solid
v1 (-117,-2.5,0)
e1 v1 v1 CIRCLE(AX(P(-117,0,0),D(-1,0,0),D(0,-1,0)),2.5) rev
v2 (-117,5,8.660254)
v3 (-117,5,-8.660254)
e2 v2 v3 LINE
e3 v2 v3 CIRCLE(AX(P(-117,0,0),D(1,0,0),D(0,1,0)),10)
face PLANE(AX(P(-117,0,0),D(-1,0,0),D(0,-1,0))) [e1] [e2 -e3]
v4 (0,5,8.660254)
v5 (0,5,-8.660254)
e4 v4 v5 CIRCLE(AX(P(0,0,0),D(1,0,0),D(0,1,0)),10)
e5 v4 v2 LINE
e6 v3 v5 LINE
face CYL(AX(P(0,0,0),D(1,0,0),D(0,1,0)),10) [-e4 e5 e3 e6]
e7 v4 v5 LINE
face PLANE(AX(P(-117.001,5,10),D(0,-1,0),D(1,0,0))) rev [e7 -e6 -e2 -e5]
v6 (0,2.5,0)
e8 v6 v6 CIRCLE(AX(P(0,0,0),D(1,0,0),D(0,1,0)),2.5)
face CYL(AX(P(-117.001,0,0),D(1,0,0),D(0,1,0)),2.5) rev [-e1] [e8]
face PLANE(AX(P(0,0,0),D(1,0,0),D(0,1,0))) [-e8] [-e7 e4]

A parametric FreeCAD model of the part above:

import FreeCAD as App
import Part
import Sketcher

V = App.Vector

doc = App.newDocument("Part")
body = doc.addObject("PartDesign::Body", "Body")

sketch1 = body.newObject("Sketcher::SketchObject", "Sketch")
sketch1.AttachmentSupport = (doc.getObject("XY_Plane"), [""])
sketch1.MapMode = "FlatFace"
sketch1.addGeometry([
    Part.LineSegment(V(-117, 10, 0), V(-117, 0, 0)),
    Part.LineSegment(V(-117, 0, 0), V(0, 0, 0)),
    Part.LineSegment(V(0, 0, 0), V(0, 10, 0)),
    Part.LineSegment(V(0, 10, 0), V(-117, 10, 0)),
], False)
sketch1.addConstraint([
    Sketcher.Constraint("Coincident", 0, 2, 1, 1),
    Sketcher.Constraint("Coincident", 1, 2, 2, 1),
    Sketcher.Constraint("Coincident", 2, 2, 3, 1),
    Sketcher.Constraint("Coincident", 3, 2, 0, 1),
    Sketcher.Constraint("Vertical", 0),
    Sketcher.Constraint("Horizontal", 1),
    Sketcher.Constraint("Vertical", 2),
    Sketcher.Constraint("Horizontal", 3),
    Sketcher.Constraint("Coincident", 1, 2, -1, 1),
    Sketcher.Constraint("DistanceX", 1, 1, 1, 2, 117.0),
    Sketcher.Constraint("DistanceY", 0, 2, 0, 1, 10.0),
])
revolution = body.newObject("PartDesign::Revolution", "Revolution")
revolution.Profile = sketch1
revolution.ReferenceAxis = (sketch1, ["H_Axis"])
revolution.Angle = 360

sketch2 = body.newObject("Sketcher::SketchObject", "Sketch001")
sketch2.AttachmentSupport = (doc.getObject("YZ_Plane"), [""])
sketch2.MapMode = "FlatFace"
sketch2.addGeometry(Part.Circle(V(0, 0, 0), V(0, 0, 1), 2.5), False)
sketch2.addConstraint([
    Sketcher.Constraint("Coincident", 0, 3, -1, 1),
    Sketcher.Constraint("Diameter", 0, 5.0),
])
pocket1 = body.newObject("PartDesign::Pocket", "Pocket")
pocket1.Profile = sketch2
pocket1.Type = "UpToFirst"

sketch3 = body.newObject("Sketcher::SketchObject", "Sketch002")
sketch3.AttachmentSupport = (doc.getObject("YZ_Plane"), [""])
sketch3.MapMode = "FlatFace"
sketch3.addGeometry([
    Part.LineSegment(V(10, 10, 0), V(5, 10, 0)),
    Part.LineSegment(V(5, 10, 0), V(5, -10, 0)),
    Part.LineSegment(V(5, -10, 0), V(10, -10, 0)),
    Part.LineSegment(V(10, -10, 0), V(10, 10, 0)),
], False)
sketch3.addConstraint([
    Sketcher.Constraint("Coincident", 0, 2, 1, 1),
    Sketcher.Constraint("Coincident", 1, 2, 2, 1),
    Sketcher.Constraint("Coincident", 2, 2, 3, 1),
    Sketcher.Constraint("Coincident", 3, 2, 0, 1),
    Sketcher.Constraint("Horizontal", 0),
    Sketcher.Constraint("Vertical", 1),
    Sketcher.Constraint("Horizontal", 2),
    Sketcher.Constraint("Vertical", 3),
    Sketcher.Constraint("DistanceX", 0, 2, 0, 1, 5.0),
    Sketcher.Constraint("DistanceY", 1, 2, 1, 1, 20.0),
    Sketcher.Constraint("DistanceX", -1, 1, 0, 2, 5.0),
    Sketcher.Constraint("DistanceY", -1, 1, 0, 2, 10.0),
])
pocket2 = body.newObject("PartDesign::Pocket", "Pocket001")
pocket2.Profile = sketch3
pocket2.Type = "UpToFirst"

doc.recompute()
